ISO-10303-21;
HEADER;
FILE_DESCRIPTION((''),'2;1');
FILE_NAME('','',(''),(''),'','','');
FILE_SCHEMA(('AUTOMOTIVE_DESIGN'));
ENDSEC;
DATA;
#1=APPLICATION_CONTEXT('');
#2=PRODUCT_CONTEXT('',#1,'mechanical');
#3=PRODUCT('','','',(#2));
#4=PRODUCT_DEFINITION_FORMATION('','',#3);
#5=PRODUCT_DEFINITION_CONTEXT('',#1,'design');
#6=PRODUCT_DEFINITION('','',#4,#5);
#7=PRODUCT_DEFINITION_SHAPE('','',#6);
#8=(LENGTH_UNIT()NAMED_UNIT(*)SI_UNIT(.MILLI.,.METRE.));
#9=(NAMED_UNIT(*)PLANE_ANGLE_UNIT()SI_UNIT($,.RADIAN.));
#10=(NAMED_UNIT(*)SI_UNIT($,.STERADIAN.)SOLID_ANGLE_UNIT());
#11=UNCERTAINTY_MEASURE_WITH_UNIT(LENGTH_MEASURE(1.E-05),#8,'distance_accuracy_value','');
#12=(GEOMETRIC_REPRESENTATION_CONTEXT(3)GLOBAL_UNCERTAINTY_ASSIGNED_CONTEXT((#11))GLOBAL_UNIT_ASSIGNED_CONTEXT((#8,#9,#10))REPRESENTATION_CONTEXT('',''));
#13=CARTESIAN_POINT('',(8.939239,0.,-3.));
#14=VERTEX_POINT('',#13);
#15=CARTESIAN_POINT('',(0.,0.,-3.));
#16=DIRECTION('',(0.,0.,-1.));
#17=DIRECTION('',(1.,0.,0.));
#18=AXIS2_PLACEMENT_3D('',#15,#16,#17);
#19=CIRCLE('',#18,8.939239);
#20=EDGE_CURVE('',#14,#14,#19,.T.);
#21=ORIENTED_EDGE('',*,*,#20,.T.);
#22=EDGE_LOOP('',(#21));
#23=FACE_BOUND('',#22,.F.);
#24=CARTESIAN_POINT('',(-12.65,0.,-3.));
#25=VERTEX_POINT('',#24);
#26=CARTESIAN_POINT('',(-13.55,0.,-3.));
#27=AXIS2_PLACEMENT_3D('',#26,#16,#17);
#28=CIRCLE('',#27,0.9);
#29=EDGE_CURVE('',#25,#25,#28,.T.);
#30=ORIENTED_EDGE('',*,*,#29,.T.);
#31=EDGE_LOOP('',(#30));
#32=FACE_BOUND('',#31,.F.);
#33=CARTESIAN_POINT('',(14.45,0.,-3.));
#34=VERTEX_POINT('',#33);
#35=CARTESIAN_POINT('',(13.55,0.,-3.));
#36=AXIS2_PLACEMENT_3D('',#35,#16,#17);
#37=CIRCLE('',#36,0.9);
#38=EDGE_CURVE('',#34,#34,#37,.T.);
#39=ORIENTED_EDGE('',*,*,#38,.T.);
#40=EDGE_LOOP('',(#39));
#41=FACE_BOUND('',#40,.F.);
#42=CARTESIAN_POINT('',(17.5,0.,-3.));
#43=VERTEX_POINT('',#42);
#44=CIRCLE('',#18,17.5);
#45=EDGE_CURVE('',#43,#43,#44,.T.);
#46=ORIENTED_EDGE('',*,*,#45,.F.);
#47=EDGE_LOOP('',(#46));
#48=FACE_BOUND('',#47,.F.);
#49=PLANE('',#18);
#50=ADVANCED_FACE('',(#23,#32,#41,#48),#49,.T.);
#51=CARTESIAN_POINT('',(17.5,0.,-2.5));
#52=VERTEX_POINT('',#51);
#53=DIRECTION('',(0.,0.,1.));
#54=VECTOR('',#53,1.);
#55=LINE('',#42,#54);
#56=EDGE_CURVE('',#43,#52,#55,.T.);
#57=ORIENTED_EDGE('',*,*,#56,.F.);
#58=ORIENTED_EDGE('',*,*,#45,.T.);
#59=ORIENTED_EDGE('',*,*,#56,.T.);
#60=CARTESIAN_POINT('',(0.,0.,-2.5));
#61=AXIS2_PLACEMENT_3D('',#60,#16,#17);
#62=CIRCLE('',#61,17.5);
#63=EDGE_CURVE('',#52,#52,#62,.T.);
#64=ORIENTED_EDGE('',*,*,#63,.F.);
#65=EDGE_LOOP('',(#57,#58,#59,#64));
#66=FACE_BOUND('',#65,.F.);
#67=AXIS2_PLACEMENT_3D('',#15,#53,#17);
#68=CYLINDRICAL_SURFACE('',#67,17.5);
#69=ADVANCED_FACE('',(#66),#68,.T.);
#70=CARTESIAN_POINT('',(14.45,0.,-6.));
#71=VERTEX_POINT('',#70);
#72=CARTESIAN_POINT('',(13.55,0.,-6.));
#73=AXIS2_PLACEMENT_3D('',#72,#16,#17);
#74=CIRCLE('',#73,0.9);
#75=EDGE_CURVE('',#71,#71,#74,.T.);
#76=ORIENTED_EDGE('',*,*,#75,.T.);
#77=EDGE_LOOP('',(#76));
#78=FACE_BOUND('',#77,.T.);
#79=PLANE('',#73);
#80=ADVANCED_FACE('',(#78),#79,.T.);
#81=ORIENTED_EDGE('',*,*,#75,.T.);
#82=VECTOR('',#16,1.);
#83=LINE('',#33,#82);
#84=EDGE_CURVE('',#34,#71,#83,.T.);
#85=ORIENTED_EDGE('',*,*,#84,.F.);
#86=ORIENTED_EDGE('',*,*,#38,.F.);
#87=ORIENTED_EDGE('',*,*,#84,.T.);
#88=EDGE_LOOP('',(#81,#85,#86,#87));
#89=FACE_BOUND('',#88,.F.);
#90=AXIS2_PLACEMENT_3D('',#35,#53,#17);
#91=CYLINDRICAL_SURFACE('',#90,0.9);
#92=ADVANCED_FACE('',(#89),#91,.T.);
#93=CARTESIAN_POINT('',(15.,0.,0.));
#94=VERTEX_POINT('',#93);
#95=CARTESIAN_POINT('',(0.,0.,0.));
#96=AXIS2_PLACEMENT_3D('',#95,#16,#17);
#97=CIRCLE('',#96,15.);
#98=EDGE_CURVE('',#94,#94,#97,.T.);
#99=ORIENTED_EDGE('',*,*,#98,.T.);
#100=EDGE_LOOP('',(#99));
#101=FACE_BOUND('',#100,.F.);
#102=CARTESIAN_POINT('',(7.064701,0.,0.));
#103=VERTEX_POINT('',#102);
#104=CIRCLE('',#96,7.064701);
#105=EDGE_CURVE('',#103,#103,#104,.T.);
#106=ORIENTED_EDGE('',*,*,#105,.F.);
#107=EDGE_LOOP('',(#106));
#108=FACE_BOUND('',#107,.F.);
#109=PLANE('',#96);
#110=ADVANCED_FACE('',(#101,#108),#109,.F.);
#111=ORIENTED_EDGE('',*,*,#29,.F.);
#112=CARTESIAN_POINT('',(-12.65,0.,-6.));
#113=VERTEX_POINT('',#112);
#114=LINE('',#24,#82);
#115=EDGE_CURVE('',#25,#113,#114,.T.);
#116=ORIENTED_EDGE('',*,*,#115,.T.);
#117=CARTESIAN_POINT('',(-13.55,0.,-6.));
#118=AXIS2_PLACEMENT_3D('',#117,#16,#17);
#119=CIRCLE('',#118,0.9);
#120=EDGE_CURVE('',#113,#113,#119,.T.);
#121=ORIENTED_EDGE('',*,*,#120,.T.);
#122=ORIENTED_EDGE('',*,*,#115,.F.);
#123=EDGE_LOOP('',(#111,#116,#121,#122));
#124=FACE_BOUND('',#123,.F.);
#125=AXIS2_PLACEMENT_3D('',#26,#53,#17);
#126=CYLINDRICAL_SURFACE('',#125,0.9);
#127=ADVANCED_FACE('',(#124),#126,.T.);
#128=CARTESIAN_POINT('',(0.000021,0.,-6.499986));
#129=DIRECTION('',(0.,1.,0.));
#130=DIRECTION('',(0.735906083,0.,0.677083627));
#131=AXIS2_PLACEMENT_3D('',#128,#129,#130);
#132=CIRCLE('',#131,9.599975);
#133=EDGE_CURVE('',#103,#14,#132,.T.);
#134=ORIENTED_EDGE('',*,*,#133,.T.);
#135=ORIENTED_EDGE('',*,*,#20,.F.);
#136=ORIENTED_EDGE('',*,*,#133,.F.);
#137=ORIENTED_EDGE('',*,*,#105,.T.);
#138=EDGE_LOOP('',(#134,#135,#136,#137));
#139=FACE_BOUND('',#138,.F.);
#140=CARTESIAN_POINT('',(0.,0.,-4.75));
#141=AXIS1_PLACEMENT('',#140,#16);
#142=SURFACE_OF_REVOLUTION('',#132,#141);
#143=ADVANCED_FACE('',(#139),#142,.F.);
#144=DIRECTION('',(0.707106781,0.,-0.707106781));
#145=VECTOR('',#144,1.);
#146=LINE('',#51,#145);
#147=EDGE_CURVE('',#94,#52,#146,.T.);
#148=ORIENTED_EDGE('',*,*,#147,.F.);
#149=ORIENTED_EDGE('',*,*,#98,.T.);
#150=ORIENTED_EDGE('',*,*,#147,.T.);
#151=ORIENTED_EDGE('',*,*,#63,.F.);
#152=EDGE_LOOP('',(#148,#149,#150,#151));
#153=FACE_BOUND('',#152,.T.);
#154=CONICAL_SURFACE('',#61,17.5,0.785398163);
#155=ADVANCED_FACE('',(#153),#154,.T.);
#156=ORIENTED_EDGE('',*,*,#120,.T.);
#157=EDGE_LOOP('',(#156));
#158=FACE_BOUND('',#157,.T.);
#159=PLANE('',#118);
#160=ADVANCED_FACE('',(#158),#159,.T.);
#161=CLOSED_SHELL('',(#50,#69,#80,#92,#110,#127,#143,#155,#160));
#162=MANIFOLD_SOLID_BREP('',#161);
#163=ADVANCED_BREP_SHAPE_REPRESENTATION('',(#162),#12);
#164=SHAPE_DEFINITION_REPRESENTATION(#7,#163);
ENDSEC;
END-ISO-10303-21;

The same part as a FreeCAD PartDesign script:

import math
import FreeCAD as App
import Part
import Sketcher
Q = App.Units.Quantity


def edges_at(feature, points):
    """Names of the edges that pass closest to the given points."""
    edges = feature.Shape.Edges
    near = lambda p: min(range(len(edges)), key=lambda i: edges[i].distToShape(Part.Vertex(*p))[0])
    return sorted({f"Edge{near(p) + 1}" for p in points})

doc = App.newDocument("Part")
params = doc.addObject("Spreadsheet::Sheet", "Params")
for row, (alias, value) in enumerate([
    ("sketch1_height", "3 mm"),
    ("revolution_angle", "360 deg"),
    ("chamfer_size", "2.5 mm"),
    ("sketch2_diameter", "1.8 mm"),
    ("pad1_length", "3 mm"),
], start=1):
    params.set(f"A{row}", alias)
    params.set(f"B{row}", "=" + value)
    params.setAlias(f"B{row}", alias)

body = doc.addObject("PartDesign::Body", "Body")

sketch1 = body.newObject("Sketcher::SketchObject", "Sketch")
sketch1.AttachmentSupport = (doc.getObject("XZ_Plane"), [""])
sketch1.MapMode = "FlatFace"
sketch1.addGeometry(Part.LineSegment(App.Vector(17.5, 0, 0), App.Vector(7.1, 0, 0)), False)
sketch1.addGeometry(Part.ArcOfCircle(Part.Circle(App.Vector(0, -6.5, 0), App.Vector(0, 0, 1), 9.6), math.radians(21), math.radians(43)), False)
sketch1.addGeometry(Part.LineSegment(App.Vector(8.9, -3, 0), App.Vector(17.5, -3, 0)), False)
sketch1.addGeometry(Part.LineSegment(App.Vector(17.5, -3, 0), App.Vector(17.5, 0, 0)), False)
sketch1.addConstraint(Sketcher.Constraint("Coincident", 0, 2, 1, 2))
sketch1.addConstraint(Sketcher.Constraint("Coincident", 1, 1, 2, 1))
sketch1.addConstraint(Sketcher.Constraint("Coincident", 2, 2, 3, 1))
sketch1.addConstraint(Sketcher.Constraint("Coincident", 3, 2, 0, 1))
sketch1.addConstraint(Sketcher.Constraint("Horizontal", 0))
sketch1.addConstraint(Sketcher.Constraint("Horizontal", 2))
sketch1.addConstraint(Sketcher.Constraint("Vertical", 3))
sketch1.addConstraint(Sketcher.Constraint("PointOnObject", 0, 2, -1))
sketch1.addConstraint(Sketcher.Constraint("DistanceY", 3, 1, 3, 2, Q("3 mm")))
sketch1.addConstraint(Sketcher.Constraint("DistanceX", -1, 1, 2, 2, Q("17.5 mm")))
sketch1.addConstraint(Sketcher.Constraint("DistanceX", 0, 2, 0, 1, Q("10.435299 mm")))
sketch1.addConstraint(Sketcher.Constraint("Radius", 1, Q("9.599975 mm")))
sketch1.addConstraint(Sketcher.Constraint("DistanceX", 2, 1, 2, 2, Q("8.560761 mm")))
sketch1.setExpression("Constraints[8]", "Params.sketch1_height")
revolution = body.newObject("PartDesign::Revolution", "Revolution")
revolution.Profile = sketch1
revolution.ReferenceAxis = (sketch1, ["V_Axis"])
revolution.setExpression("Angle", "Params.revolution_angle")
doc.recompute()

chamfer = body.newObject("PartDesign::Chamfer", "Chamfer")
chamfer.Base = (revolution, edges_at(revolution, [(-17.5, 0, 0)]))
chamfer.setExpression("Size", "Params.chamfer_size")

sketch2 = body.newObject("Sketcher::SketchObject", "Sketch001")
sketch2.AttachmentSupport = (doc.getObject("XY_Plane"), [""])
sketch2.MapMode = "FlatFace"
sketch2.AttachmentOffset = App.Placement(App.Vector(0, 0, -3), App.Rotation())
sketch2.addGeometry(Part.Circle(App.Vector(-13.6, 0, 0), App.Vector(0, 0, 1), 0.9), False)
sketch2.addGeometry(Part.Circle(App.Vector(13.6, 0, 0), App.Vector(0, 0, 1), 0.9), False)
sketch2.addConstraint(Sketcher.Constraint("Equal", 0, 1))
sketch2.addConstraint(Sketcher.Constraint("Symmetric", 0, 3, 1, 3, -1, 1))
sketch2.addConstraint(Sketcher.Constraint("PointOnObject", 0, 3, -1))
sketch2.addConstraint(Sketcher.Constraint("Diameter", 0, Q("1.8 mm")))
sketch2.addConstraint(Sketcher.Constraint("DistanceX", 0, 3, 1, 3, Q("27.1 mm")))
sketch2.setExpression("Constraints[3]", "Params.sketch2_diameter")
pad1 = body.newObject("PartDesign::Pad", "Pad")
pad1.Profile = sketch2
pad1.setExpression("Length", "Params.pad1_length")
pad1.Reversed = True

doc.recompute()
